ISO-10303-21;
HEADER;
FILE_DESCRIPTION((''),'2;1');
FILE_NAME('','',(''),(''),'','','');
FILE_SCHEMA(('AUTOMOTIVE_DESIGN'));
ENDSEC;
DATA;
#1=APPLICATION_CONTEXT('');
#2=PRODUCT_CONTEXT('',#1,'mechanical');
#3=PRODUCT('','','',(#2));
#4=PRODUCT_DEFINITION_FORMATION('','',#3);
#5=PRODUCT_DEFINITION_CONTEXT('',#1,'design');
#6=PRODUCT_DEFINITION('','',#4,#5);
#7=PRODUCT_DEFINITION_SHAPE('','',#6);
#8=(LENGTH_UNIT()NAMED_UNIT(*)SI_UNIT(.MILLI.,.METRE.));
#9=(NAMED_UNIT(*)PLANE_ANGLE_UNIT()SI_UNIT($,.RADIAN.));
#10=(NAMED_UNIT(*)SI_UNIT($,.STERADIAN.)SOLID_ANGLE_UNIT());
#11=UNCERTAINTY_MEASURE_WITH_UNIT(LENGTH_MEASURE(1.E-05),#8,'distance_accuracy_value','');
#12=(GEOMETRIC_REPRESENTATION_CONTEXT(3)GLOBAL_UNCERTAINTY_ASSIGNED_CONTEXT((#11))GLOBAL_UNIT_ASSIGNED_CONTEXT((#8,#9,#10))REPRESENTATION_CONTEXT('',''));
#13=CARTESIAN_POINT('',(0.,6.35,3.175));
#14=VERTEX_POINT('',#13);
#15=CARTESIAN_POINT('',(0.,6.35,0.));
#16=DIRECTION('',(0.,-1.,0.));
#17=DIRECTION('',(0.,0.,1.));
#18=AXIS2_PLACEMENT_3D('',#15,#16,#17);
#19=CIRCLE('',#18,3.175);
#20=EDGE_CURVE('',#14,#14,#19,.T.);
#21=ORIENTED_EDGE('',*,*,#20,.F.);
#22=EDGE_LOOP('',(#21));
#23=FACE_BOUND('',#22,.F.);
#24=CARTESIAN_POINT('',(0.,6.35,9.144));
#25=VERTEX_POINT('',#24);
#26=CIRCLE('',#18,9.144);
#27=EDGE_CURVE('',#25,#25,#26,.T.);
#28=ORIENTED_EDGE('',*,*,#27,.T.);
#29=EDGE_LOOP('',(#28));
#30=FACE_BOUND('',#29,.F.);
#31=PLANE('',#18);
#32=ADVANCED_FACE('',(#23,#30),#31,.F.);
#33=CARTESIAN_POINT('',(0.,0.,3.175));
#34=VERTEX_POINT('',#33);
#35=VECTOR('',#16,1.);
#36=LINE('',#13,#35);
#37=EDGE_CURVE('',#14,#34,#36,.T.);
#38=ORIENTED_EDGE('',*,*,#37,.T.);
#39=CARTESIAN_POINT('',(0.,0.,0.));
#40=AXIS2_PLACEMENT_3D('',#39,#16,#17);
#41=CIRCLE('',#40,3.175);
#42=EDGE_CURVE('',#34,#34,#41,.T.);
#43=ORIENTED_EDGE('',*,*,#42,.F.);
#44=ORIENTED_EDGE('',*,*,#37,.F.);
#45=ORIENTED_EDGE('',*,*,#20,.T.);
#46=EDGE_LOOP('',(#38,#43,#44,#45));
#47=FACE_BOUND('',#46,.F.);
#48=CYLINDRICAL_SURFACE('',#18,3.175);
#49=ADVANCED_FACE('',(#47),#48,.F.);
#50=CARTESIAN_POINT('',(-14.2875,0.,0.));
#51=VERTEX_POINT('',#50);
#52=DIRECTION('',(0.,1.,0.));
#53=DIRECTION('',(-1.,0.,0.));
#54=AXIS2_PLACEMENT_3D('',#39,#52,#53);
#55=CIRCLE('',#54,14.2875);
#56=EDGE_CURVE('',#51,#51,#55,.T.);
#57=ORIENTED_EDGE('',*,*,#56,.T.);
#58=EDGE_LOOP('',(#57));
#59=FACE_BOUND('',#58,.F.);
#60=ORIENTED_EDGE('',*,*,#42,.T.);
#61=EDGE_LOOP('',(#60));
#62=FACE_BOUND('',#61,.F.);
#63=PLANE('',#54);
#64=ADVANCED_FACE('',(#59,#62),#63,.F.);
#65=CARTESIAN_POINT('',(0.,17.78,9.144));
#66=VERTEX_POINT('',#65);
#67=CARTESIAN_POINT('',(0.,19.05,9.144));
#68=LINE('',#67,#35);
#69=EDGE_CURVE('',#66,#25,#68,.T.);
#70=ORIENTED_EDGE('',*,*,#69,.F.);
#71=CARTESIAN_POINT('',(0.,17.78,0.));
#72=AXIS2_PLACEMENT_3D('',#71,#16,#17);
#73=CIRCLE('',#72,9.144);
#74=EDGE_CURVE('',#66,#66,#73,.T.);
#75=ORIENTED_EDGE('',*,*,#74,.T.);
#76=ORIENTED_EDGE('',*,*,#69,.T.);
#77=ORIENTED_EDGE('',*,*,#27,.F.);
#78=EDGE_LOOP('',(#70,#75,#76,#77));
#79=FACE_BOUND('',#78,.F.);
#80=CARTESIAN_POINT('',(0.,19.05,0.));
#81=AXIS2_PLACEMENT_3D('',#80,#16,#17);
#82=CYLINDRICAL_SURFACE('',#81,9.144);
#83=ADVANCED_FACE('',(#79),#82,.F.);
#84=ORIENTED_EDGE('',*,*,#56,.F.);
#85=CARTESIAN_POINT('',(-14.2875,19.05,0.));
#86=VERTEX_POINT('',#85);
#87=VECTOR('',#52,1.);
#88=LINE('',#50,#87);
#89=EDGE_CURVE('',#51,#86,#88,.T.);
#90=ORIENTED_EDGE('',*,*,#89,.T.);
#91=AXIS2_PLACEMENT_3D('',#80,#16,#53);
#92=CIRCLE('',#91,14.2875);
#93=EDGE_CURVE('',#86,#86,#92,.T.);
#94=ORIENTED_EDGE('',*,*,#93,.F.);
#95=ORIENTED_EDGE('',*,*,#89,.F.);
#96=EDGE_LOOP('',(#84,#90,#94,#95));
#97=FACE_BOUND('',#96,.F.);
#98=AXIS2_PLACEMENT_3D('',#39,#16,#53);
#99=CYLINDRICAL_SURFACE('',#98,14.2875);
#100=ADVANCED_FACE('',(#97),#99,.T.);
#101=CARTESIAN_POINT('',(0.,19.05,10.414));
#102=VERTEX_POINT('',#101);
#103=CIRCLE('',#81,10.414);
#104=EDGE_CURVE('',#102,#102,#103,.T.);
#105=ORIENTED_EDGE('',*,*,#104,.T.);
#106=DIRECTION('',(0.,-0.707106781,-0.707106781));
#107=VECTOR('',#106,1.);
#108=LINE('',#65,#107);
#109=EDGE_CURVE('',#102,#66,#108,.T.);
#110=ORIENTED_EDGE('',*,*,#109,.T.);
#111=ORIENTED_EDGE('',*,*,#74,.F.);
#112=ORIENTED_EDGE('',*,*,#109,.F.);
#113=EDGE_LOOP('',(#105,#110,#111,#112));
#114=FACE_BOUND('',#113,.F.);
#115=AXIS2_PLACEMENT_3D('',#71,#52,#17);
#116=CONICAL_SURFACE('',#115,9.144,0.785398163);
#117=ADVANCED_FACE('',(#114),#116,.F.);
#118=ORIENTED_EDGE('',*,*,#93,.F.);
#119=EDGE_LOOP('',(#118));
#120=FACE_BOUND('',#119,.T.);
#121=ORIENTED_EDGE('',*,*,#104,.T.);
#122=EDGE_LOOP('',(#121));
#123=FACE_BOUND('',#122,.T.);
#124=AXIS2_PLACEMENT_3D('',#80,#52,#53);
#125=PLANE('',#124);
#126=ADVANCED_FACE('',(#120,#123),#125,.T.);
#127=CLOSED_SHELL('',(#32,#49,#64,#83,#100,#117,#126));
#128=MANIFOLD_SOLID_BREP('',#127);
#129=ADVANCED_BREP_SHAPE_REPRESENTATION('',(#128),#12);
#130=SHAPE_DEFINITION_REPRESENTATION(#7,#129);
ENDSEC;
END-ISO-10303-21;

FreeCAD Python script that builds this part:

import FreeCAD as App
import Part
import Sketcher
from FreeCAD import Vector
Q = App.Units.Quantity


def edges_at(feature, points):
    """Names of the edges that pass closest to the given points."""
    edges = feature.Shape.Edges
    near = lambda p: min(range(len(edges)), key=lambda i: edges[i].distToShape(Part.Vertex(*p))[0])
    return sorted({f"Edge{near(p) + 1}" for p in points})

doc = App.newDocument("Part")
body = doc.addObject("PartDesign::Body", "Body")

# Sketch on XZ plane
sketch1 = body.newObject("Sketcher::SketchObject", "Sketch")
sketch1.AttachmentSupport = (doc.getObject("XZ_Plane"), [""])
sketch1.MapMode = "FlatFace"
sketch1.addGeometry(Part.Circle(Vector(0, 0, 0), Vector(0, 0, 1), 14), False)
sketch1.addConstraint([
    Sketcher.Constraint("Coincident", 0, 3, -1, 1),
    Sketcher.Constraint("Diameter", 0, Q("1.125 in")),
])
pad1 = body.newObject("PartDesign::Pad", "Pad")
pad1.Profile = sketch1
pad1.Length = Q("0.75 in")
pad1.Reversed = True

# Sketch on XZ plane
sketch2 = body.newObject("Sketcher::SketchObject", "Sketch001")
sketch2.AttachmentSupport = (doc.getObject("XZ_Plane"), [""])
sketch2.MapMode = "FlatFace"
sketch2.AttachmentOffset = App.Placement(Vector(0, 0, -0.75 * 25.4), App.Rotation())
sketch2.addGeometry(Part.Circle(Vector(0, 0, 0), Vector(0, 0, 1), 3.2), False)
sketch2.addConstraint([
    Sketcher.Constraint("Coincident", 0, 3, -1, 1),
    Sketcher.Constraint("Diameter", 0, Q("0.25 in")),
])
doc.recompute()
hole = body.newObject("PartDesign::Hole", "Hole")
hole.Profile = sketch2
hole.ThreadType = "None"
hole.Diameter = Q("0.25 in")
hole.DepthType = "ThroughAll"
hole.HoleCutType = "Counterbore"
hole.HoleCutDiameter = Q("0.72 in")
hole.HoleCutDepth = Q("0.5 in")
hole.Reversed = True
doc.recompute()

chamfer = body.newObject("PartDesign::Chamfer", "Chamfer")
chamfer.Base = (hole, edges_at(hole, [(0, 19.05, -9.144)]))
chamfer.Size = Q("0.05 in")

doc.recompute()
